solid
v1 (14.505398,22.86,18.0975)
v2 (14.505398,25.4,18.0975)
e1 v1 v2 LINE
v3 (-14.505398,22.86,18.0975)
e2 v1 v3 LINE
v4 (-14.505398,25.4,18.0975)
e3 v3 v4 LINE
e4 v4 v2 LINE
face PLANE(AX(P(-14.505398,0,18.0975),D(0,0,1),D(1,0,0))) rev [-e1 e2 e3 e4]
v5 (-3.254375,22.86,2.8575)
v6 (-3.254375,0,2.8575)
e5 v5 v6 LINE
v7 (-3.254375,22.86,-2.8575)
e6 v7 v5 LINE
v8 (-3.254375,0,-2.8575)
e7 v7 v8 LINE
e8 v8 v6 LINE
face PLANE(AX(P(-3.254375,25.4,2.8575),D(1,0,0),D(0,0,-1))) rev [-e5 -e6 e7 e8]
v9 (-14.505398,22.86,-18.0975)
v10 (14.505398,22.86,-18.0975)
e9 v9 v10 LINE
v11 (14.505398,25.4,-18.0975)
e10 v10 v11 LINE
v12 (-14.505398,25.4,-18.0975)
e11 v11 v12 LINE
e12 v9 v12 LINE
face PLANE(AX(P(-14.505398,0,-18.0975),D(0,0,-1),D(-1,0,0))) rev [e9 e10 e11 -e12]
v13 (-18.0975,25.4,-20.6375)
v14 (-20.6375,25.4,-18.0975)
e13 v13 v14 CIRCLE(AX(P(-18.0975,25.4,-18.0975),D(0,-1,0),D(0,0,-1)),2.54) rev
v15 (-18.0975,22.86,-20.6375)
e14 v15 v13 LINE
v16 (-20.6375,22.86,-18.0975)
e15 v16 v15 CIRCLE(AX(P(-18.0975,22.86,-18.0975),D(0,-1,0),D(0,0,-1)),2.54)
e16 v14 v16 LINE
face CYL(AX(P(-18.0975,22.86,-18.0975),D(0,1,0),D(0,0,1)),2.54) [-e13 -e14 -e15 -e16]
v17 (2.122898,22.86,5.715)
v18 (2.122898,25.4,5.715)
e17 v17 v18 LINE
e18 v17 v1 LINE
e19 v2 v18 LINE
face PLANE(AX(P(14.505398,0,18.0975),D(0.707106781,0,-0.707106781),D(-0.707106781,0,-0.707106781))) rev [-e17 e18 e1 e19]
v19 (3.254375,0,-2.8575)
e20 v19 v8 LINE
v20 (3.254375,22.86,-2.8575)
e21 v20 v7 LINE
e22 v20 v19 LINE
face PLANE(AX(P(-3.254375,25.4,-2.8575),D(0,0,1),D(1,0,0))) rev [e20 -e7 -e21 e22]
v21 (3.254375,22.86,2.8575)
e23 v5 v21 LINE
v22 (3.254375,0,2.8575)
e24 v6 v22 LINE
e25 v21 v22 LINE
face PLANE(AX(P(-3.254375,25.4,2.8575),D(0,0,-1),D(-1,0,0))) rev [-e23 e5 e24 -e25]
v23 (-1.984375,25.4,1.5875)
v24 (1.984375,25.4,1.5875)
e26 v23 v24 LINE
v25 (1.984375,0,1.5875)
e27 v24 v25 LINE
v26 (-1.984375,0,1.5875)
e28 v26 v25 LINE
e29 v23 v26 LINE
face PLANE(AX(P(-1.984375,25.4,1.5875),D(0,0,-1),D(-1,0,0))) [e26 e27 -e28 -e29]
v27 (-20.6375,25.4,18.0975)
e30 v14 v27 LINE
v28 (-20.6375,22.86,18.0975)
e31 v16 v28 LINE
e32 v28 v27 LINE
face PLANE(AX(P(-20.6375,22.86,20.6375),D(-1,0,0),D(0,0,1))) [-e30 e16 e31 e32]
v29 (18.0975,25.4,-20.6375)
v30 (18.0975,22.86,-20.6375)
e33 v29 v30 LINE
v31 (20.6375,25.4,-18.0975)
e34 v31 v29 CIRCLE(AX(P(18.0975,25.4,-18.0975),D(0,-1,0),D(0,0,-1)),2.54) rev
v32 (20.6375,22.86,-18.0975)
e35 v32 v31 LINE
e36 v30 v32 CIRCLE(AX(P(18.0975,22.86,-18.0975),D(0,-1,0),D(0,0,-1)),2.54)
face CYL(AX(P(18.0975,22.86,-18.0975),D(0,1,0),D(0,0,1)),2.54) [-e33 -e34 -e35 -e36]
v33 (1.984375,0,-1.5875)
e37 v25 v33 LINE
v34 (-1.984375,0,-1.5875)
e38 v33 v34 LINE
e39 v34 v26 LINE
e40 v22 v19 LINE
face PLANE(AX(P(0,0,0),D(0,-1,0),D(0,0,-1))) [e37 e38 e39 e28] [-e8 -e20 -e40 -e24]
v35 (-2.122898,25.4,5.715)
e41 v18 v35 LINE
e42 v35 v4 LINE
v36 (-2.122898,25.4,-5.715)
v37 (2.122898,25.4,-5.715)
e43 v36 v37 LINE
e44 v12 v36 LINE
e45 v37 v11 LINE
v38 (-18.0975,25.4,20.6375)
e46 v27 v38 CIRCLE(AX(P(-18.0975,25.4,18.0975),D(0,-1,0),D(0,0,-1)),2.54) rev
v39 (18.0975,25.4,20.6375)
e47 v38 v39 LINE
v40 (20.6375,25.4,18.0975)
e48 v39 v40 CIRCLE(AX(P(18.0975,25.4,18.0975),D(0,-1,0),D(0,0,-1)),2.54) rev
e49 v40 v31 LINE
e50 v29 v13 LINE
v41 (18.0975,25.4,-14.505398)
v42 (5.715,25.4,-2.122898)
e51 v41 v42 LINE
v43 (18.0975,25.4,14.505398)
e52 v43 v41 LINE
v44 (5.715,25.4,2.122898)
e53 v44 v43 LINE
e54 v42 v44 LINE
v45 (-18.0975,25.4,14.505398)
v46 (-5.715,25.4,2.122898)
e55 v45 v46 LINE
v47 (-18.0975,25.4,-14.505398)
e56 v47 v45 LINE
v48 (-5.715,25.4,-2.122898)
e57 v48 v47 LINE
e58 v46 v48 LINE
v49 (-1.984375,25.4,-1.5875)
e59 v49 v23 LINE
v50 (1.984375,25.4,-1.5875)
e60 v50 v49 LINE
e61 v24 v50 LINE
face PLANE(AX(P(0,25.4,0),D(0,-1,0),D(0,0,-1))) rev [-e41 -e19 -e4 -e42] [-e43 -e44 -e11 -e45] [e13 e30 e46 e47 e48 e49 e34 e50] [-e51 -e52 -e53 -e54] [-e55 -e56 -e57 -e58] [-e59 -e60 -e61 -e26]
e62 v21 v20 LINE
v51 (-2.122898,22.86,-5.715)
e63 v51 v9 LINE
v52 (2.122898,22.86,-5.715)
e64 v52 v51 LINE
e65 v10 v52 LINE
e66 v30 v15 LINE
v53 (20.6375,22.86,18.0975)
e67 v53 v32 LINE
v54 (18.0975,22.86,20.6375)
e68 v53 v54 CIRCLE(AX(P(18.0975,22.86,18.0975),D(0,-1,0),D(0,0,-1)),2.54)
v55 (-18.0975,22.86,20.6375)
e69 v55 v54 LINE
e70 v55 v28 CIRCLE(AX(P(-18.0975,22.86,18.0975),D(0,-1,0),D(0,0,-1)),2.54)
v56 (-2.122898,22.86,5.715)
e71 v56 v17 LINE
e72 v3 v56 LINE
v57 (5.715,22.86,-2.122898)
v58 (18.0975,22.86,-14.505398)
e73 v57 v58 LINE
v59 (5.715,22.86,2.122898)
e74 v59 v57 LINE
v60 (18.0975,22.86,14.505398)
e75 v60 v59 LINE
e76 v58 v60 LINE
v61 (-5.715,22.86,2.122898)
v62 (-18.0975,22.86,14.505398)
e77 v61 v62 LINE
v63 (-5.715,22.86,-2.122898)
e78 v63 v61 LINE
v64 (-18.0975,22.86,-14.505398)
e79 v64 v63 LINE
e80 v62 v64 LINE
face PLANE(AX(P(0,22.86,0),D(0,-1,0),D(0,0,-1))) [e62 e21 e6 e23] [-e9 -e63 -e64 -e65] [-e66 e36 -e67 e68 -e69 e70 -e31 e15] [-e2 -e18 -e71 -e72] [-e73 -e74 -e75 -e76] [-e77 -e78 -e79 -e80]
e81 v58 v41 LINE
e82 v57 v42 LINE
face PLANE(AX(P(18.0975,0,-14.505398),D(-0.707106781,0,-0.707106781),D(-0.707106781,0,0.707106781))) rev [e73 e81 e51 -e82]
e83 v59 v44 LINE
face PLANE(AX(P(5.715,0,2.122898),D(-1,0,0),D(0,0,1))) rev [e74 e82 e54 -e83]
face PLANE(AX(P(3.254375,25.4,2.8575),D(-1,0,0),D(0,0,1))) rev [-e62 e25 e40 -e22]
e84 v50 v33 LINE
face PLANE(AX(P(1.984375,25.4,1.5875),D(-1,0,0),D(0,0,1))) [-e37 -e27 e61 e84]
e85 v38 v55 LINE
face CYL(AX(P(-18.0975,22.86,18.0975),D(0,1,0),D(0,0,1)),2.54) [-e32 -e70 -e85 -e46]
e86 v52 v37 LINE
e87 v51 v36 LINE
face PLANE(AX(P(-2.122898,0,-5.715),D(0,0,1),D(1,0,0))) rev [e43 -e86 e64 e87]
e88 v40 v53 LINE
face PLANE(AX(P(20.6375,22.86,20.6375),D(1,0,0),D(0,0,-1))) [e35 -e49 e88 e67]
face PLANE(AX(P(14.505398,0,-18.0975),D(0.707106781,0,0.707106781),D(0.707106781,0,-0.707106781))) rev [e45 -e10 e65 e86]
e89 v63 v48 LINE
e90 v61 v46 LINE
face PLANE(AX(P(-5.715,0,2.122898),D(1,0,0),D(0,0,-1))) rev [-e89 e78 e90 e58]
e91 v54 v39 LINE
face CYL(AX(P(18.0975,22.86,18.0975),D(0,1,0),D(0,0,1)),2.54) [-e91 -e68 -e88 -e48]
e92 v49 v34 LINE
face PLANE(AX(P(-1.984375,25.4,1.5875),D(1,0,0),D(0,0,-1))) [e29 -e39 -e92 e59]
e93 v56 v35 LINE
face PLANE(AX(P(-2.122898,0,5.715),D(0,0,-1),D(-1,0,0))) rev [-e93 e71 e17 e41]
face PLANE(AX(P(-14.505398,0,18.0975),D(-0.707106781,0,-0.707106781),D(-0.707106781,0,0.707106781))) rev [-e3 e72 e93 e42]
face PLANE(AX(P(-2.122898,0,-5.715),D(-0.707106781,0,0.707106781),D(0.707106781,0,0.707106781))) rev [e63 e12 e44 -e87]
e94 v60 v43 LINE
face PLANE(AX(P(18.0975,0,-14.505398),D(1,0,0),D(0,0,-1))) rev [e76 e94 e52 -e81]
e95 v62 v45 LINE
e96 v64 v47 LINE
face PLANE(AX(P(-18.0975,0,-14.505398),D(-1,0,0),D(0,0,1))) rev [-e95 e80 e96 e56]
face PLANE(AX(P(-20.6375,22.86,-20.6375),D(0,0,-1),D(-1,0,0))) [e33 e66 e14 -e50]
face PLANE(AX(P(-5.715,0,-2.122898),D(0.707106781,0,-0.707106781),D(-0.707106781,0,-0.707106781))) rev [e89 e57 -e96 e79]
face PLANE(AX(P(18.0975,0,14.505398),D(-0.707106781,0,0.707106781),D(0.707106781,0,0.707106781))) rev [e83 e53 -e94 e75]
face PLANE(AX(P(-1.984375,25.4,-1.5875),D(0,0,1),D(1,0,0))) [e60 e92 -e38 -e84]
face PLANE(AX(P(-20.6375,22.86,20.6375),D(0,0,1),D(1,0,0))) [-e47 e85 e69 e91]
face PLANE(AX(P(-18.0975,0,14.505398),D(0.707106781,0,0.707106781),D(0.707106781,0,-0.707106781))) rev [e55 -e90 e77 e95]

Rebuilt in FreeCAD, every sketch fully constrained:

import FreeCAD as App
import Part
import Sketcher

V = App.Vector
Q = App.Units.Quantity


def edges_at(feature, points):
    """Names of the edges that pass closest to the given points."""
    edges = feature.Shape.Edges
    near = lambda p: min(range(len(edges)), key=lambda i: edges[i].distToShape(Part.Vertex(*p))[0])
    return sorted({f"Edge{near(p) + 1}" for p in points})


def add_polygon(sketch, points):
    """Adds a closed chain of lines whose ends are joined by coincident constraints."""
    first, n = sketch.GeometryCount, len(points)
    for a, b in zip(points, points[1:] + points[:1]):
        sketch.addGeometry(Part.LineSegment(App.Vector(*a, 0), App.Vector(*b, 0)), False)
    for i in range(n):
        sketch.addConstraint(Sketcher.Constraint("Coincident", first + i, 2, first + (i + 1) % n, 1))

doc = App.newDocument("Part")
body = doc.addObject("PartDesign::Body", "Body")

sketch1 = body.newObject("Sketcher::SketchObject", "Sketch")
sketch1.AttachmentSupport = (doc.getObject("XZ_Plane"), [""])
sketch1.MapMode = "FlatFace"
add_polygon(sketch1, [(-3.254375, -2.8575), (-3.254375, 2.8575), (3.254375, 2.8575), (3.254375, -2.8575)])
add_polygon(sketch1, [(1.984375, 1.5875), (-1.984375, 1.5875), (-1.984375, -1.5875), (1.984375, -1.5875)])
sketch1.addConstraint(Sketcher.Constraint("Vertical", 0))
sketch1.addConstraint(Sketcher.Constraint("Horizontal", 1))
sketch1.addConstraint(Sketcher.Constraint("Vertical", 2))
sketch1.addConstraint(Sketcher.Constraint("Horizontal", 3))
sketch1.addConstraint(Sketcher.Constraint("Horizontal", 4))
sketch1.addConstraint(Sketcher.Constraint("Vertical", 5))
sketch1.addConstraint(Sketcher.Constraint("Horizontal", 6))
sketch1.addConstraint(Sketcher.Constraint("Vertical", 7))
sketch1.addConstraint(Sketcher.Constraint("Symmetric", 0, 2, 2, 2, -1, 1))
sketch1.addConstraint(Sketcher.Constraint("Symmetric", 4, 2, 6, 2, -1, 1))
sketch1.addConstraint(Sketcher.Constraint("DistanceX", 4, 2, 4, 1, Q("0.15625 in")))
sketch1.addConstraint(Sketcher.Constraint("DistanceY", 0, 1, 0, 2, Q("0.225 in")))
sketch1.addConstraint(Sketcher.Constraint("DistanceY", 5, 2, 5, 1, Q("0.125 in")))
sketch1.addConstraint(Sketcher.Constraint("DistanceX", 0, 2, 4, 2, Q("0.05 in")))
pad1 = body.newObject("PartDesign::Pad", "Pad")
pad1.Profile = sketch1
pad1.Length = Q("1 in")
pad1.Reversed = True

sketch2 = body.newObject("Sketcher::SketchObject", "Sketch001")
sketch2.AttachmentSupport = (doc.getObject("XZ_Plane"), [""])
sketch2.MapMode = "FlatFace"
sketch2.AttachmentOffset = App.Placement(V(0, 0, -1 * 25.4), App.Rotation())
add_polygon(sketch2, [(-20.6375, -20.6375), (-20.6375, 20.6375), (20.6375, 20.6375), (20.6375, -20.6375)])
add_polygon(sketch2, [(3.254375, 2.8575), (-3.254375, 2.8575), (-3.254375, -2.8575), (3.254375, -2.8575)])
sketch2.addConstraint(Sketcher.Constraint("Vertical", 0))
sketch2.addConstraint(Sketcher.Constraint("Horizontal", 1))
sketch2.addConstraint(Sketcher.Constraint("Vertical", 2))
sketch2.addConstraint(Sketcher.Constraint("Horizontal", 3))
sketch2.addConstraint(Sketcher.Constraint("Horizontal", 4))
sketch2.addConstraint(Sketcher.Constraint("Vertical", 5))
sketch2.addConstraint(Sketcher.Constraint("Horizontal", 6))
sketch2.addConstraint(Sketcher.Constraint("Vertical", 7))
sketch2.addConstraint(Sketcher.Constraint("Symmetric", 0, 2, 2, 2, -1, 1))
sketch2.addConstraint(Sketcher.Constraint("Symmetric", 4, 2, 6, 2, -1, 1))
sketch2.addConstraint(Sketcher.Constraint("Equal", 3, 0))
sketch2.addConstraint(Sketcher.Constraint("DistanceY", 4, 2, 0, 2, Q("0.7 in")))
sketch2.addConstraint(Sketcher.Constraint("DistanceX", 1, 1, 1, 2, Q("1.625 in")))
sketch2.addConstraint(Sketcher.Constraint("DistanceX", 4, 2, 4, 1, 6.50875))
pad2 = body.newObject("PartDesign::Pad", "Pad001")
pad2.Profile = sketch2
pad2.Length = Q("0.1 in")

sketch3 = body.newObject("Sketcher::SketchObject", "Sketch002")
sketch3.AttachmentSupport = (doc.getObject("XZ_Plane"), [""])
sketch3.MapMode = "FlatFace"
sketch3.AttachmentOffset = App.Placement(V(0, 0, -1 * 25.4), App.Rotation())
add_polygon(sketch3, [(-14.505398, -18.0975), (-2.122898, -5.715), (2.122898, -5.715), (14.505398, -18.0975)])
add_polygon(sketch3, [(-5.715, -2.122898), (-18.0975, -14.505398), (-18.0975, 14.505398), (-5.715, 2.122898)])
add_polygon(sketch3, [(-2.122898, 5.715), (-14.505398, 18.0975), (14.505398, 18.0975), (2.122898, 5.715)])
add_polygon(sketch3, [(18.0975, -14.505398), (5.715, -2.122898), (5.715, 2.122898), (18.0975, 14.505398)])
sketch3.addConstraint(Sketcher.Constraint("Horizontal", 1))
sketch3.addConstraint(Sketcher.Constraint("Horizontal", 3))
sketch3.addConstraint(Sketcher.Constraint("Vertical", 5))
sketch3.addConstraint(Sketcher.Constraint("Vertical", 7))
sketch3.addConstraint(Sketcher.Constraint("Horizontal", 9))
sketch3.addConstraint(Sketcher.Constraint("Horizontal", 11))
sketch3.addConstraint(Sketcher.Constraint("Vertical", 13))
sketch3.addConstraint(Sketcher.Constraint("Vertical", 15))
sketch3.addConstraint(Sketcher.Constraint("Symmetric", 2, 2, 8, 2, -1, 1))
sketch3.addConstraint(Sketcher.Constraint("Symmetric", 0, 2, 10, 2, -1, 1))
sketch3.addConstraint(Sketcher.Constraint("Symmetric", 6, 2, 12, 2, -1, 1))
sketch3.addConstraint(Sketcher.Constraint("Symmetric", 4, 2, 14, 2, -1, 1))
sketch3.addConstraint(Sketcher.Constraint("Perpendicular", 0, 2))
sketch3.addConstraint(Sketcher.Constraint("Perpendicular", 2, 4))
sketch3.addConstraint(Sketcher.Constraint("Perpendicular", 4, 6))
sketch3.addConstraint(Sketcher.Constraint("Parallel", 6, 8))
sketch3.addConstraint(Sketcher.Constraint("Perpendicular", 8, 10))
sketch3.addConstraint(Sketcher.Constraint("Perpendicular", 10, 12))
sketch3.addConstraint(Sketcher.Constraint("Perpendicular", 12, 14))
sketch3.addConstraint(Sketcher.Constraint("Horizontal", 7, 2, 12, 2))
sketch3.addConstraint(Sketcher.Constraint("Horizontal", 5, 2, 14, 2))
sketch3.addConstraint(Sketcher.Constraint("Vertical", 3, 2, 8, 2))
sketch3.addConstraint(Sketcher.Constraint("Equal", 9, 5))
sketch3.addConstraint(Sketcher.Constraint("Equal", 11, 7))
sketch3.addConstraint(Sketcher.Constraint("DistanceY", 1, 2, 10, 2, Q("0.45 in")))
sketch3.addConstraint(Sketcher.Constraint("DistanceX", 7, 2, 12, 2, Q("0.45 in")))
sketch3.addConstraint(Sketcher.Constraint("DistanceY", 0, 2, 8, 2, Q("0.9375 in")))
sketch3.addConstraint(Sketcher.Constraint("DistanceX", 1, 1, 1, 2, 4.245795))
pocket1 = body.newObject("PartDesign::Pocket", "Pocket")
pocket1.Profile = sketch3
pocket1.Type = "ThroughAll"
pocket1.Reversed = True
doc.recompute()

fillet = body.newObject("PartDesign::Fillet", "Fillet")
fillet.Base = (pocket1, edges_at(pocket1, [
    (20.637, 24.13, -20.637),
    (20.637, 24.13, 20.637),
    (-20.637, 24.13, 20.637),
    (-20.637, 24.13, -20.637),
]))
fillet.Radius = Q("0.1 in")

doc.recompute()
